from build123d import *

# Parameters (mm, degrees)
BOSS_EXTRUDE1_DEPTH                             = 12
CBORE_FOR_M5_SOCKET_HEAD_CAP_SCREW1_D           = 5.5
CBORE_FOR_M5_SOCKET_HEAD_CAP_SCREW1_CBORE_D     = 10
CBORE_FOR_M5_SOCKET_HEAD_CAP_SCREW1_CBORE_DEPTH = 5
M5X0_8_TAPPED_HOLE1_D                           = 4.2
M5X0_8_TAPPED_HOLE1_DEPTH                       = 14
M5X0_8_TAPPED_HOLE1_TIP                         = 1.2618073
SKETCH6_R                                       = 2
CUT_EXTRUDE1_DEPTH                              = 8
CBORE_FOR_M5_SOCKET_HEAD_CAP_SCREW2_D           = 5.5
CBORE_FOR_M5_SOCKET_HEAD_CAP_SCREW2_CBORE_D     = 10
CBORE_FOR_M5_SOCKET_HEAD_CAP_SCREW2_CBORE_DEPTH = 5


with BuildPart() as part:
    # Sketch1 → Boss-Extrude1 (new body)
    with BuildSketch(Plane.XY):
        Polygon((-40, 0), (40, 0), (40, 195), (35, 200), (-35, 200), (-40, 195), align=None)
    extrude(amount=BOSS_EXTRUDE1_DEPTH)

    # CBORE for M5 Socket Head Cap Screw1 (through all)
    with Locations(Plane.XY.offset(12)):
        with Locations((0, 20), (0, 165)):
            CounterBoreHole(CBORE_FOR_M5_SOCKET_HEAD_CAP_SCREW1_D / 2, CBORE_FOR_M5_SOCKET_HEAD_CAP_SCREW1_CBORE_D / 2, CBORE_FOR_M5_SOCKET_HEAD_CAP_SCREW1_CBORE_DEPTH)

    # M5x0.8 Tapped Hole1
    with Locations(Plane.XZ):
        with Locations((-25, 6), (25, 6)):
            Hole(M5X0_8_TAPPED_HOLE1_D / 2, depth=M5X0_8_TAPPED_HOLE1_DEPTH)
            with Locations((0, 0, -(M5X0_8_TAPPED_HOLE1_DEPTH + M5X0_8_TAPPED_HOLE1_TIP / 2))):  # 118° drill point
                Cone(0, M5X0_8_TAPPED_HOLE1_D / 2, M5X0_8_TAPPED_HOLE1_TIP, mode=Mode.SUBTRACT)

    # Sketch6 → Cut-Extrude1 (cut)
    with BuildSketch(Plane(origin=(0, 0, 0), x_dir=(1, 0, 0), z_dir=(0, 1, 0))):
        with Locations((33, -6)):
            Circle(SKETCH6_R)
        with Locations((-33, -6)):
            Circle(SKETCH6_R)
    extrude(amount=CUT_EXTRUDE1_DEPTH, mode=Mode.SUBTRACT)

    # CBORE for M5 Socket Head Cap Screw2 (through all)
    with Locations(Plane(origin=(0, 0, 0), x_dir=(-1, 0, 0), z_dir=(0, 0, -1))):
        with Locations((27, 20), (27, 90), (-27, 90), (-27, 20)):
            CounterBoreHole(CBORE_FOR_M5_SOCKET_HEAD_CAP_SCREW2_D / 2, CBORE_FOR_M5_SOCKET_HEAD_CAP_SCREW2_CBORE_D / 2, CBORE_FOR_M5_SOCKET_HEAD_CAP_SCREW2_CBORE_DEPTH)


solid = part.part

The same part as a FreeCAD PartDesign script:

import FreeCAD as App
import Part
import Sketcher
from FreeCAD import Vector
Q = App.Units.Quantity


def add_polygon(sketch, points):
    """Adds a closed chain of lines whose ends are joined by coincident constraints."""
    first, n = sketch.GeometryCount, len(points)
    for a, b in zip(points, points[1:] + points[:1]):
        sketch.addGeometry(Part.LineSegment(App.Vector(*a, 0), App.Vector(*b, 0)), False)
    for i in range(n):
        sketch.addConstraint(Sketcher.Constraint("Coincident", first + i, 2, first + (i + 1) % n, 1))

doc = App.newDocument("Part")
params = doc.addObject("Spreadsheet::Sheet", "Params")
for row, (alias, value) in enumerate([
    ("sketch1_width", "80 mm"),
    ("sketch1_width2", "70 mm"),
    ("sketch1_height", "195 mm"),
    ("pad1_length", "12 mm"),
    ("sketch2_diameter", "5.5 mm"),
    ("hole_diameter", "5.5 mm"),
    ("hole_cbore_diameter", "10 mm"),
    ("hole_cbore_depth", "5 mm"),
    ("sketch3_diameter", "4.2 mm"),
    ("hole2_diameter", "4.2 mm"),
    ("hole2_depth", "14 mm"),
    ("sketch4_diameter", "4 mm"),
    ("pocket1_length", "8 mm"),
    ("sketch5_diameter", "5.5 mm"),
    ("hole3_diameter", "5.5 mm"),
    ("hole3_cbore_diameter", "10 mm"),
    ("hole3_cbore_depth", "5 mm"),
], start=1):
    params.set(f"A{row}", alias)
    params.set(f"B{row}", "=" + value)
    params.setAlias(f"B{row}", alias)

body = doc.addObject("PartDesign::Body", "Body")

# Sketch on XY plane
sketch1 = body.newObject("Sketcher::SketchObject", "Sketch")
sketch1.AttachmentSupport = (doc.getObject("XY_Plane"), [""])
sketch1.MapMode = "FlatFace"
add_polygon(sketch1, [(-40, 0), (40, 0), (40, 195), (35, 200), (-35, 200), (-40, 195)])  # lines 0-5
sketch1.addConstraint(Sketcher.Constraint("Horizontal", 0))
sketch1.addConstraint(Sketcher.Constraint("Vertical", 1))
sketch1.addConstraint(Sketcher.Constraint("Horizontal", 3))
sketch1.addConstraint(Sketcher.Constraint("Vertical", 5))
sketch1.addConstraint(Sketcher.Constraint("Symmetric", 0, 2, 5, 2, -1, 1))
sketch1.addConstraint(Sketcher.Constraint("Perpendicular", 2, 4))
sketch1.addConstraint(Sketcher.Constraint("Horizontal", 1, 2, 4, 2))
sketch1.addConstraint(Sketcher.Constraint("Equal", 2, 4))
sketch1.addConstraint(Sketcher.Constraint("DistanceX", 0, 1, 0, 2, Q("80 mm")))
sketch1.addConstraint(Sketcher.Constraint("DistanceX", 3, 2, 3, 1, Q("70 mm")))
sketch1.addConstraint(Sketcher.Constraint("DistanceY", 1, 1, 1, 2, Q("195 mm")))
sketch1.setExpression("Constraints[14]", "Params.sketch1_width")
sketch1.setExpression("Constraints[15]", "Params.sketch1_width2")
sketch1.setExpression("Constraints[16]", "Params.sketch1_height")
pad1 = body.newObject("PartDesign::Pad", "Pad")
pad1.Profile = sketch1
pad1.setExpression("Length", "Params.pad1_length")

# Sketch on XY plane
sketch2 = body.newObject("Sketcher::SketchObject", "Sketch001")
sketch2.AttachmentSupport = (doc.getObject("XY_Plane"), [""])
sketch2.MapMode = "FlatFace"
sketch2.AttachmentOffset = App.Placement(Vector(0, 0, 12), App.Rotation())
sketch2.addGeometry(Part.Circle(Vector(0, 20, 0), Vector(0, 0, 1), 2.75), False)
sketch2.addGeometry(Part.Circle(Vector(0, 165, 0), Vector(0, 0, 1), 2.75), False)
sketch2.addConstraint(Sketcher.Constraint("Equal", 0, 1))
sketch2.addConstraint(Sketcher.Constraint("PointOnObject", 0, 3, -2))
sketch2.addConstraint(Sketcher.Constraint("PointOnObject", 1, 3, -2))
sketch2.addConstraint(Sketcher.Constraint("Diameter", 0, Q("5.5 mm")))
sketch2.addConstraint(Sketcher.Constraint("DistanceY", -1, 1, 0, 3, Q("20 mm")))
sketch2.addConstraint(Sketcher.Constraint("DistanceY", -1, 1, 1, 3, Q("165 mm")))
sketch2.setExpression("Constraints[3]", "Params.sketch2_diameter")
doc.recompute()
hole = body.newObject("PartDesign::Hole", "Hole")
hole.Profile = sketch2
hole.ThreadType = "None"
hole.setExpression("Diameter", "Params.hole_diameter")
hole.DepthType = "ThroughAll"
hole.HoleCutType = "Counterbore"
hole.setExpression("HoleCutDiameter", "Params.hole_cbore_diameter")
hole.setExpression("HoleCutDepth", "Params.hole_cbore_depth")

# Sketch on XZ plane
sketch3 = body.newObject("Sketcher::SketchObject", "Sketch002")
sketch3.AttachmentSupport = (doc.getObject("XZ_Plane"), [""])
sketch3.MapMode = "FlatFace"
sketch3.addGeometry(Part.Circle(Vector(-25, 6, 0), Vector(0, 0, 1), 2.1), False)
sketch3.addGeometry(Part.Circle(Vector(25, 6, 0), Vector(0, 0, 1), 2.1), False)
sketch3.addConstraint(Sketcher.Constraint("Equal", 0, 1))
sketch3.addConstraint(Sketcher.Constraint("Symmetric", 0, 3, 1, 3, -2))
sketch3.addConstraint(Sketcher.Constraint("Diameter", 0, Q("4.2 mm")))
sketch3.addConstraint(Sketcher.Constraint("DistanceX", 0, 3, -1, 1, Q("25 mm")))
sketch3.addConstraint(Sketcher.Constraint("DistanceY", -1, 1, 0, 3, Q("6 mm")))
sketch3.setExpression("Constraints[2]", "Params.sketch3_diameter")
doc.recompute()
hole2 = body.newObject("PartDesign::Hole", "Hole001")
hole2.Profile = sketch3
hole2.ThreadType = "None"
hole2.setExpression("Diameter", "Params.hole2_diameter")
hole2.DepthType = "Dimension"
hole2.setExpression("Depth", "Params.hole2_depth")
hole2.DrillPoint = "Angled"
hole2.DrillPointAngle = 118

# Sketch on XZ plane
sketch4 = body.newObject("Sketcher::SketchObject", "Sketch003")
sketch4.AttachmentSupport = (doc.getObject("XZ_Plane"), [""])
sketch4.MapMode = "FlatFace"
sketch4.addGeometry(Part.Circle(Vector(33, 6, 0), Vector(0, 0, 1), 2), False)
sketch4.addGeometry(Part.Circle(Vector(-33, 6, 0), Vector(0, 0, 1), 2), False)
sketch4.addConstraint(Sketcher.Constraint("Equal", 0, 1))
sketch4.addConstraint(Sketcher.Constraint("Symmetric", 0, 3, 1, 3, -2))
sketch4.addConstraint(Sketcher.Constraint("Diameter", 0, Q("4 mm")))
sketch4.addConstraint(Sketcher.Constraint("DistanceX", -1, 1, 0, 3, Q("33 mm")))
sketch4.addConstraint(Sketcher.Constraint("DistanceY", -1, 1, 0, 3, Q("6 mm")))
sketch4.setExpression("Constraints[2]", "Params.sketch4_diameter")
pocket1 = body.newObject("PartDesign::Pocket", "Pocket")
pocket1.Profile = sketch4
pocket1.setExpression("Length", "Params.pocket1_length")

# Sketch on XY plane
sketch5 = body.newObject("Sketcher::SketchObject", "Sketch004")
sketch5.AttachmentSupport = (doc.getObject("XY_Plane"), [""])
sketch5.MapMode = "FlatFace"
sketch5.addGeometry(Part.Circle(Vector(-27, 20, 0), Vector(0, 0, 1), 2.75), False)
sketch5.addGeometry(Part.Circle(Vector(-27, 90, 0), Vector(0, 0, 1), 2.75), False)
sketch5.addGeometry(Part.Circle(Vector(27, 90, 0), Vector(0, 0, 1), 2.75), False)
sketch5.addGeometry(Part.Circle(Vector(27, 20, 0), Vector(0, 0, 1), 2.75), False)
sketch5.addConstraint(Sketcher.Constraint("Equal", 0, 1))
sketch5.addConstraint(Sketcher.Constraint("Equal", 1, 2))
sketch5.addConstraint(Sketcher.Constraint("Equal", 2, 3))
sketch5.addConstraint(Sketcher.Constraint("Symmetric", 1, 3, 2, 3, -2))
sketch5.addConstraint(Sketcher.Constraint("Symmetric", 0, 3, 3, 3, -2))
sketch5.addConstraint(Sketcher.Constraint("Vertical", 0, 3, 1, 3))
sketch5.addConstraint(Sketcher.Constraint("Diameter", 0, Q("5.5 mm")))
sketch5.addConstraint(Sketcher.Constraint("DistanceX", 0, 3, -1, 1, Q("27 mm")))
sketch5.addConstraint(Sketcher.Constraint("DistanceY", -1, 1, 0, 3, Q("20 mm")))
sketch5.addConstraint(Sketcher.Constraint("DistanceY", -1, 1, 1, 3, Q("90 mm")))
sketch5.setExpression("Constraints[6]", "Params.sketch5_diameter")
doc.recompute()
hole3 = body.newObject("PartDesign::Hole", "Hole002")
hole3.Profile = sketch5
hole3.ThreadType = "None"
hole3.setExpression("Diameter", "Params.hole3_diameter")
hole3.DepthType = "ThroughAll"
hole3.HoleCutType = "Counterbore"
hole3.setExpression("HoleCutDiameter", "Params.hole3_cbore_diameter")
hole3.setExpression("HoleCutDepth", "Params.hole3_cbore_depth")
hole3.Reversed = True

doc.recompute()
